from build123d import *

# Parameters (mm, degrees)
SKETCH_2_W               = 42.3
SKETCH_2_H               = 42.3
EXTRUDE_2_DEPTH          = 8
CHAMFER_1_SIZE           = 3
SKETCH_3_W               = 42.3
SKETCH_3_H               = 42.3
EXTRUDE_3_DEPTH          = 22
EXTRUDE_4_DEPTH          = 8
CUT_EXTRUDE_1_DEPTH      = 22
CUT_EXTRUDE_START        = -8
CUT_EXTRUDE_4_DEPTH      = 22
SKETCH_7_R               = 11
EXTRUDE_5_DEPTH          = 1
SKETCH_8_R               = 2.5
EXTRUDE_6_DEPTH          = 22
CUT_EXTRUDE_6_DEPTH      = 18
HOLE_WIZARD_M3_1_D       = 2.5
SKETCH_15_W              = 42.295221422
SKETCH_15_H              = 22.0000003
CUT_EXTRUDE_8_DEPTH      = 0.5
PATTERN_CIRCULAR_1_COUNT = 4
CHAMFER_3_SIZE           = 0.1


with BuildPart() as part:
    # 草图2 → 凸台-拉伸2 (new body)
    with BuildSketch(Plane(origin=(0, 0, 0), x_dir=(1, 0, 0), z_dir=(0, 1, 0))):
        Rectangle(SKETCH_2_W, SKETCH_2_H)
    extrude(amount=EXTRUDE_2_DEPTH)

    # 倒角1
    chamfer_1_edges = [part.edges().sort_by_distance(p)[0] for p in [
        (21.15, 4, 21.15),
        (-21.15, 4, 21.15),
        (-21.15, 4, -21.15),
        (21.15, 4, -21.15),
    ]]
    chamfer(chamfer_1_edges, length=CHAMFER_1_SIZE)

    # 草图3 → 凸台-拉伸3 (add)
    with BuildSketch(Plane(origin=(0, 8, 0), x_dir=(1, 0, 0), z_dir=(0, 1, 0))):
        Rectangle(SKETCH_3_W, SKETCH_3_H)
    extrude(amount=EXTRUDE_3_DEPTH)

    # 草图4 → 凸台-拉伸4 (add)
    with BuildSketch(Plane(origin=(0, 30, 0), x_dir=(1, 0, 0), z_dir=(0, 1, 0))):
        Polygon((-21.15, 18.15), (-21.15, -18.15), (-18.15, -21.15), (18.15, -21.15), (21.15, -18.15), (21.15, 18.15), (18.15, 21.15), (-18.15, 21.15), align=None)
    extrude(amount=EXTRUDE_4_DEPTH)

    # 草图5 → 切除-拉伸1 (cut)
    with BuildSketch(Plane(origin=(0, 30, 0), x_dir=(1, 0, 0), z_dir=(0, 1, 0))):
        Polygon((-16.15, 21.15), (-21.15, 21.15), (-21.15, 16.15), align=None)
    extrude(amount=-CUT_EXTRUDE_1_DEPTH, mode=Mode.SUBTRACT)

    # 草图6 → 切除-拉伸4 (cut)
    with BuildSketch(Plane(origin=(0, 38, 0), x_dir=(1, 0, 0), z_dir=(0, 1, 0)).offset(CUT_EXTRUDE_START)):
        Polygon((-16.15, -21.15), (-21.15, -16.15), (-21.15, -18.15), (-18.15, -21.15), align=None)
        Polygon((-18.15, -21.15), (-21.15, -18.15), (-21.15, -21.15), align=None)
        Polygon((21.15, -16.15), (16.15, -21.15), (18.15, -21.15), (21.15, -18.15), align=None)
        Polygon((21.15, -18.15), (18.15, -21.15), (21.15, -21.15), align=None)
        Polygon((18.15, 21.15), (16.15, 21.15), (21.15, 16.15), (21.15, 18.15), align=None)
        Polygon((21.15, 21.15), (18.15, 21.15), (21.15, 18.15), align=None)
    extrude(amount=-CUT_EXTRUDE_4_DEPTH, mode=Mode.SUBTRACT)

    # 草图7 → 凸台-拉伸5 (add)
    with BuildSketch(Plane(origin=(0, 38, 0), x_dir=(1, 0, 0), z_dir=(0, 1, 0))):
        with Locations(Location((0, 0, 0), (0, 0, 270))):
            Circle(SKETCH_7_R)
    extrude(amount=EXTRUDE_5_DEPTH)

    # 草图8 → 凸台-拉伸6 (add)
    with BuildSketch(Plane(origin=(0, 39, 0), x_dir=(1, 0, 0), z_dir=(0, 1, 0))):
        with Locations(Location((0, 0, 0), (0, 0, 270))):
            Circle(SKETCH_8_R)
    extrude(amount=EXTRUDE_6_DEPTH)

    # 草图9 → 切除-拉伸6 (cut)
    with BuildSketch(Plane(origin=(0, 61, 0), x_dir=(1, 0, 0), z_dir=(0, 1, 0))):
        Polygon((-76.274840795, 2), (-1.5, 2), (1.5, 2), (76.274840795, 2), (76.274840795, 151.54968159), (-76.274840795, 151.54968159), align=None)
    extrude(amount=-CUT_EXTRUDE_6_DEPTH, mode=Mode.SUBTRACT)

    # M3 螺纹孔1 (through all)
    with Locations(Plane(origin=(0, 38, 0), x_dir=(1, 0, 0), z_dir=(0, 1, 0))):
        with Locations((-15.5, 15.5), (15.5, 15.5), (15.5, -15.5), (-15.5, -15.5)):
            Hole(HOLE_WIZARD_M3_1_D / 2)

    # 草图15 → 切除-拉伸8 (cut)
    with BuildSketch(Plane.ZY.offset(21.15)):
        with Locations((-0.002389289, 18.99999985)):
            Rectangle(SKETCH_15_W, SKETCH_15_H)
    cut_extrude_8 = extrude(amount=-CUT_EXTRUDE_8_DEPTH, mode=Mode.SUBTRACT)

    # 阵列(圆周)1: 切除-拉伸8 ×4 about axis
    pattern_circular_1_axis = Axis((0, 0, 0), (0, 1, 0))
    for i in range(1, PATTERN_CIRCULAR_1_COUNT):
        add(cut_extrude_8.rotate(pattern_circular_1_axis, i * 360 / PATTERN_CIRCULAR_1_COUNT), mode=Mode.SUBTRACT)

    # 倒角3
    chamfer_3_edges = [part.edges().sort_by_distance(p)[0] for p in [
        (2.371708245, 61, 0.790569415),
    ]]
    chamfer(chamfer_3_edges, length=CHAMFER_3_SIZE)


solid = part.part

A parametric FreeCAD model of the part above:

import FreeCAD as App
import Part
import Sketcher


def edges_at(feature, points):
    """Names of the edges that pass closest to the given points."""
    edges = feature.Shape.Edges
    near = lambda p: min(range(len(edges)), key=lambda i: edges[i].distToShape(Part.Vertex(*p))[0])
    return sorted({f"Edge{near(p) + 1}" for p in points})


def add_polygon(sketch, points):
    """Adds a closed chain of lines whose ends are joined by coincident constraints."""
    first, n = sketch.GeometryCount, len(points)
    for a, b in zip(points, points[1:] + points[:1]):
        sketch.addGeometry(Part.LineSegment(App.Vector(*a, 0), App.Vector(*b, 0)), False)
    for i in range(n):
        sketch.addConstraint(Sketcher.Constraint("Coincident", first + i, 2, first + (i + 1) % n, 1))

doc = App.newDocument("Part")
body = doc.addObject("PartDesign::Body", "Body")

sketch1 = body.newObject("Sketcher::SketchObject", "Sketch")
sketch1.AttachmentSupport = (doc.getObject("XZ_Plane"), [""])
sketch1.MapMode = "FlatFace"
add_polygon(sketch1, [(-21, -21), (-21, 21), (21, 21), (21, -21)])
sketch1.addConstraint(Sketcher.Constraint("Vertical", 0))
sketch1.addConstraint(Sketcher.Constraint("Horizontal", 1))
sketch1.addConstraint(Sketcher.Constraint("Vertical", 2))
sketch1.addConstraint(Sketcher.Constraint("Horizontal", 3))
sketch1.addConstraint(Sketcher.Constraint("Symmetric", 0, 2, 2, 2, -1, 1))
sketch1.addConstraint(Sketcher.Constraint("Equal", 3, 0))
sketch1.addConstraint(Sketcher.Constraint("DistanceX", 1, 1, 1, 2, 42.3))
pad1 = body.newObject("PartDesign::Pad", "Pad")
pad1.Profile = sketch1
pad1.Length = 8
pad1.Reversed = True
doc.recompute()

chamfer = body.newObject("PartDesign::Chamfer", "Chamfer")
chamfer.Base = (pad1, edges_at(pad1, [
    (21.15, 4, 21.15),
    (-21.15, 4, 21.15),
    (-21.15, 4, -21.15),
    (21.15, 4, -21.15),
]))
chamfer.Size = 3

sketch2 = body.newObject("Sketcher::SketchObject", "Sketch001")
sketch2.AttachmentSupport = (doc.getObject("XZ_Plane"), [""])
sketch2.MapMode = "FlatFace"
sketch2.AttachmentOffset = App.Placement(App.Vector(0, 0, -8), App.Rotation())
add_polygon(sketch2, [(-21, -21), (-21, 21), (21, 21), (21, -21)])
sketch2.addConstraint(Sketcher.Constraint("Vertical", 0))
sketch2.addConstraint(Sketcher.Constraint("Horizontal", 1))
sketch2.addConstraint(Sketcher.Constraint("Vertical", 2))
sketch2.addConstraint(Sketcher.Constraint("Horizontal", 3))
sketch2.addConstraint(Sketcher.Constraint("Symmetric", 0, 2, 2, 2, -1, 1))
sketch2.addConstraint(Sketcher.Constraint("Equal", 3, 0))
sketch2.addConstraint(Sketcher.Constraint("DistanceX", 1, 1, 1, 2, 42.3))
pad2 = body.newObject("PartDesign::Pad", "Pad001")
pad2.Profile = sketch2
pad2.Length = 22
pad2.Reversed = True

sketch3 = body.newObject("Sketcher::SketchObject", "Sketch002")
sketch3.AttachmentSupport = (doc.getObject("XZ_Plane"), [""])
sketch3.MapMode = "FlatFace"
sketch3.AttachmentOffset = App.Placement(App.Vector(0, 0, -30), App.Rotation())
add_polygon(sketch3, [(-21.1, -18.1), (-21.1, 18.1), (-18.1, 21.1), (18.1, 21.1), (21.1, 18.1), (21.1, -18.1), (18.1, -21.1), (-18.1, -21.1)])
sketch3.addConstraint(Sketcher.Constraint("Vertical", 0))
sketch3.addConstraint(Sketcher.Constraint("Horizontal", 2))
sketch3.addConstraint(Sketcher.Constraint("Vertical", 4))
sketch3.addConstraint(Sketcher.Constraint("Horizontal", 6))
sketch3.addConstraint(Sketcher.Constraint("Symmetric", 0, 2, 4, 2, -1, 1))
sketch3.addConstraint(Sketcher.Constraint("Symmetric", 1, 2, 5, 2, -1, 1))
sketch3.addConstraint(Sketcher.Constraint("Perpendicular", 1, 3))
sketch3.addConstraint(Sketcher.Constraint("Perpendicular", 5, 7))
sketch3.addConstraint(Sketcher.Constraint("Horizontal", 0, 2, 3, 2))
sketch3.addConstraint(Sketcher.Constraint("Horizontal", 4, 2, 7, 2))
sketch3.addConstraint(Sketcher.Constraint("Vertical", 2, 2, 5, 2))
sketch3.addConstraint(Sketcher.Constraint("Equal", 6, 0))
sketch3.addConstraint(Sketcher.Constraint("DistanceX", 2, 1, 2, 2, 36.3))
sketch3.addConstraint(Sketcher.Constraint("DistanceX", 0, 2, 1, 2, 3.0))
pad3 = body.newObject("PartDesign::Pad", "Pad002")
pad3.Profile = sketch3
pad3.Length = 8
pad3.Reversed = True

sketch4 = body.newObject("Sketcher::SketchObject", "Sketch003")
sketch4.AttachmentSupport = (doc.getObject("XZ_Plane"), [""])
sketch4.MapMode = "FlatFace"
sketch4.AttachmentOffset = App.Placement(App.Vector(0, 0, -30), App.Rotation())
add_polygon(sketch4, [(-16, -21), (-21, -21), (-21, -16)])
sketch4.addConstraint(Sketcher.Constraint("Horizontal", 0))
sketch4.addConstraint(Sketcher.Constraint("Vertical", 1))
sketch4.addConstraint(Sketcher.Constraint("Equal", 0, 1))
sketch4.addConstraint(Sketcher.Constraint("DistanceX", 0, 2, 0, 1, 5.0))
sketch4.addConstraint(Sketcher.Constraint("DistanceX", 0, 2, -1, 1, 21.15))
sketch4.addConstraint(Sketcher.Constraint("DistanceY", 0, 2, -1, 1, 21.15))
pocket1 = body.newObject("PartDesign::Pocket", "Pocket")
pocket1.Profile = sketch4
pocket1.Length = 22
pocket1.Reversed = True

sketch5 = body.newObject("Sketcher::SketchObject", "Sketch004")
sketch5.AttachmentSupport = (doc.getObject("XZ_Plane"), [""])
sketch5.MapMode = "FlatFace"
sketch5.AttachmentOffset = App.Placement(App.Vector(0, 0, -30), App.Rotation())
add_polygon(sketch5, [(-16, 21), (-21, 16), (-21, 21)])
add_polygon(sketch5, [(21, 16), (16, 21), (21, 21)])
add_polygon(sketch5, [(16, -21), (21, -16), (21, -21)])
sketch5.addConstraint(Sketcher.Constraint("Vertical", 1))
sketch5.addConstraint(Sketcher.Constraint("Horizontal", 2))
sketch5.addConstraint(Sketcher.Constraint("Horizontal", 4))
sketch5.addConstraint(Sketcher.Constraint("Vertical", 5))
sketch5.addConstraint(Sketcher.Constraint("Vertical", 7))
sketch5.addConstraint(Sketcher.Constraint("Horizontal", 8))
sketch5.addConstraint(Sketcher.Constraint("Symmetric", 0, 2, 6, 2, -1, 1))
sketch5.addConstraint(Sketcher.Constraint("Symmetric", 2, 2, 8, 2, -1, 1))
sketch5.addConstraint(Sketcher.Constraint("Symmetric", 2, 2, 3, 2, -2))
sketch5.addConstraint(Sketcher.Constraint("Symmetric", 0, 2, 5, 2, -2))
sketch5.addConstraint(Sketcher.Constraint("Perpendicular", 0, 3))
sketch5.addConstraint(Sketcher.Constraint("DistanceX", 2, 1, 2, 2, 5.0))
sketch5.addConstraint(Sketcher.Constraint("DistanceX", 2, 2, 3, 2, 32.3))
sketch5.addConstraint(Sketcher.Constraint("DistanceY", 6, 2, 5, 2, 32.3))
pocket2 = body.newObject("PartDesign::Pocket", "Pocket001")
pocket2.Profile = sketch5
pocket2.Length = 22
pocket2.Reversed = True

sketch6 = body.newObject("Sketcher::SketchObject", "Sketch005")
sketch6.AttachmentSupport = (doc.getObject("XZ_Plane"), [""])
sketch6.MapMode = "FlatFace"
sketch6.AttachmentOffset = App.Placement(App.Vector(0, 0, -38), App.Rotation())
sketch6.addGeometry(Part.Circle(App.Vector(0, 0, 0), App.Vector(0, 0, 1), 11), False)
sketch6.addConstraint(Sketcher.Constraint("Coincident", 0, 3, -1, 1))
sketch6.addConstraint(Sketcher.Constraint("Diameter", 0, 22.0))
pad4 = body.newObject("PartDesign::Pad", "Pad003")
pad4.Profile = sketch6
pad4.Length = 1
pad4.Reversed = True

sketch7 = body.newObject("Sketcher::SketchObject", "Sketch006")
sketch7.AttachmentSupport = (doc.getObject("XZ_Plane"), [""])
sketch7.MapMode = "FlatFace"
sketch7.AttachmentOffset = App.Placement(App.Vector(0, 0, -39), App.Rotation())
sketch7.addGeometry(Part.Circle(App.Vector(0, 0, 0), App.Vector(0, 0, 1), 2.5), False)
sketch7.addConstraint(Sketcher.Constraint("Coincident", 0, 3, -1, 1))
sketch7.addConstraint(Sketcher.Constraint("Diameter", 0, 5.0))
pad5 = body.newObject("PartDesign::Pad", "Pad004")
pad5.Profile = sketch7
pad5.Length = 22
pad5.Reversed = True

sketch8 = body.newObject("Sketcher::SketchObject", "Sketch007")
sketch8.AttachmentSupport = (doc.getObject("XZ_Plane"), [""])
sketch8.MapMode = "FlatFace"
sketch8.AttachmentOffset = App.Placement(App.Vector(0, 0, -61), App.Rotation())
add_polygon(sketch8, [(-76, -2), (76, -2), (76, -152), (-76, -152)])
sketch8.addConstraint(Sketcher.Constraint("Horizontal", 0))
sketch8.addConstraint(Sketcher.Constraint("Vertical", 1))
sketch8.addConstraint(Sketcher.Constraint("Horizontal", 2))
sketch8.addConstraint(Sketcher.Constraint("Vertical", 3))
sketch8.addConstraint(Sketcher.Constraint("DistanceY", 0, 2, -1, 1, 2.0))
sketch8.addConstraint(Sketcher.Constraint("DistanceX", 0, 1, 0, 2, 152.549682))
sketch8.addConstraint(Sketcher.Constraint("DistanceY", 1, 2, 1, 1, 149.549682))
sketch8.addConstraint(Sketcher.Constraint("DistanceX", -1, 1, 0, 2, 76.274841))
pocket3 = body.newObject("PartDesign::Pocket", "Pocket002")
pocket3.Profile = sketch8
pocket3.Length = 18
pocket3.Reversed = True

sketch9 = body.newObject("Sketcher::SketchObject", "Sketch008")
sketch9.AttachmentSupport = (doc.getObject("XZ_Plane"), [""])
sketch9.MapMode = "FlatFace"
sketch9.AttachmentOffset = App.Placement(App.Vector(0, 0, -38), App.Rotation())
sketch9.addGeometry(Part.Circle(App.Vector(-15.5, -15.5, 0), App.Vector(0, 0, 1), 1.2), False)
sketch9.addGeometry(Part.Circle(App.Vector(15.5, -15.5, 0), App.Vector(0, 0, 1), 1.2), False)
sketch9.addGeometry(Part.Circle(App.Vector(15.5, 15.5, 0), App.Vector(0, 0, 1), 1.2), False)
sketch9.addGeometry(Part.Circle(App.Vector(-15.5, 15.5, 0), App.Vector(0, 0, 1), 1.2), False)
sketch9.addConstraint(Sketcher.Constraint("Equal", 0, 1))
sketch9.addConstraint(Sketcher.Constraint("Equal", 1, 2))
sketch9.addConstraint(Sketcher.Constraint("Equal", 2, 3))
sketch9.addConstraint(Sketcher.Constraint("Symmetric", 0, 3, 2, 3, -1, 1))
sketch9.addConstraint(Sketcher.Constraint("Symmetric", 1, 3, 3, 3, -1, 1))
sketch9.addConstraint(Sketcher.Constraint("Symmetric", 0, 3, 1, 3, -2))
sketch9.addConstraint(Sketcher.Constraint("Diameter", 0, 2.5))
sketch9.addConstraint(Sketcher.Constraint("DistanceX", 0, 3, 1, 3, 31.0))
sketch9.addConstraint(Sketcher.Constraint("DistanceY", 1, 3, 2, 3, 31.0))
doc.recompute()
hole = body.newObject("PartDesign::Hole", "Hole")
hole.Profile = sketch9
hole.ThreadType = "None"
hole.Diameter = 2.5
hole.DepthType = "ThroughAll"
hole.Reversed = True

sketch10 = body.newObject("Sketcher::SketchObject", "Sketch009")
sketch10.AttachmentSupport = (doc.getObject("YZ_Plane"), [""])
sketch10.MapMode = "FlatFace"
sketch10.AttachmentOffset = App.Placement(App.Vector(0, 0, -21.15), App.Rotation())
add_polygon(sketch10, [(30, -21), (8, -21), (8, 21), (30, 21)])
sketch10.addConstraint(Sketcher.Constraint("Horizontal", 0))
sketch10.addConstraint(Sketcher.Constraint("Vertical", 1))
sketch10.addConstraint(Sketcher.Constraint("Horizontal", 2))
sketch10.addConstraint(Sketcher.Constraint("Vertical", 3))
sketch10.addConstraint(Sketcher.Constraint("DistanceX", 0, 2, 0, 1, 22.0))
sketch10.addConstraint(Sketcher.Constraint("DistanceX", -1, 1, 0, 2, 8.0))
sketch10.addConstraint(Sketcher.Constraint("DistanceY", 0, 2, -1, 1, 21.15))
sketch10.addConstraint(Sketcher.Constraint("DistanceY", 1, 1, 1, 2, 42.295221))
pocket4 = body.newObject("PartDesign::Pocket", "Pocket003")
pocket4.Profile = sketch10
pocket4.Length = 0.5
pocket4.Reversed = True
doc.recompute()

polarpattern = body.newObject("PartDesign::PolarPattern", "PolarPattern")
polarpattern.Originals = [pocket4]
polarpattern.Axis = (doc.getObject("Y_Axis"), [""])
polarpattern.Angle = 360
polarpattern.Occurrences = 4
body.Tip = polarpattern
doc.recompute()

chamfer2 = body.newObject("PartDesign::Chamfer", "Chamfer001")
chamfer2.Base = (polarpattern, edges_at(polarpattern, [(2.372, 61, 0.791)]))
chamfer2.Size = 0.1

doc.recompute()
